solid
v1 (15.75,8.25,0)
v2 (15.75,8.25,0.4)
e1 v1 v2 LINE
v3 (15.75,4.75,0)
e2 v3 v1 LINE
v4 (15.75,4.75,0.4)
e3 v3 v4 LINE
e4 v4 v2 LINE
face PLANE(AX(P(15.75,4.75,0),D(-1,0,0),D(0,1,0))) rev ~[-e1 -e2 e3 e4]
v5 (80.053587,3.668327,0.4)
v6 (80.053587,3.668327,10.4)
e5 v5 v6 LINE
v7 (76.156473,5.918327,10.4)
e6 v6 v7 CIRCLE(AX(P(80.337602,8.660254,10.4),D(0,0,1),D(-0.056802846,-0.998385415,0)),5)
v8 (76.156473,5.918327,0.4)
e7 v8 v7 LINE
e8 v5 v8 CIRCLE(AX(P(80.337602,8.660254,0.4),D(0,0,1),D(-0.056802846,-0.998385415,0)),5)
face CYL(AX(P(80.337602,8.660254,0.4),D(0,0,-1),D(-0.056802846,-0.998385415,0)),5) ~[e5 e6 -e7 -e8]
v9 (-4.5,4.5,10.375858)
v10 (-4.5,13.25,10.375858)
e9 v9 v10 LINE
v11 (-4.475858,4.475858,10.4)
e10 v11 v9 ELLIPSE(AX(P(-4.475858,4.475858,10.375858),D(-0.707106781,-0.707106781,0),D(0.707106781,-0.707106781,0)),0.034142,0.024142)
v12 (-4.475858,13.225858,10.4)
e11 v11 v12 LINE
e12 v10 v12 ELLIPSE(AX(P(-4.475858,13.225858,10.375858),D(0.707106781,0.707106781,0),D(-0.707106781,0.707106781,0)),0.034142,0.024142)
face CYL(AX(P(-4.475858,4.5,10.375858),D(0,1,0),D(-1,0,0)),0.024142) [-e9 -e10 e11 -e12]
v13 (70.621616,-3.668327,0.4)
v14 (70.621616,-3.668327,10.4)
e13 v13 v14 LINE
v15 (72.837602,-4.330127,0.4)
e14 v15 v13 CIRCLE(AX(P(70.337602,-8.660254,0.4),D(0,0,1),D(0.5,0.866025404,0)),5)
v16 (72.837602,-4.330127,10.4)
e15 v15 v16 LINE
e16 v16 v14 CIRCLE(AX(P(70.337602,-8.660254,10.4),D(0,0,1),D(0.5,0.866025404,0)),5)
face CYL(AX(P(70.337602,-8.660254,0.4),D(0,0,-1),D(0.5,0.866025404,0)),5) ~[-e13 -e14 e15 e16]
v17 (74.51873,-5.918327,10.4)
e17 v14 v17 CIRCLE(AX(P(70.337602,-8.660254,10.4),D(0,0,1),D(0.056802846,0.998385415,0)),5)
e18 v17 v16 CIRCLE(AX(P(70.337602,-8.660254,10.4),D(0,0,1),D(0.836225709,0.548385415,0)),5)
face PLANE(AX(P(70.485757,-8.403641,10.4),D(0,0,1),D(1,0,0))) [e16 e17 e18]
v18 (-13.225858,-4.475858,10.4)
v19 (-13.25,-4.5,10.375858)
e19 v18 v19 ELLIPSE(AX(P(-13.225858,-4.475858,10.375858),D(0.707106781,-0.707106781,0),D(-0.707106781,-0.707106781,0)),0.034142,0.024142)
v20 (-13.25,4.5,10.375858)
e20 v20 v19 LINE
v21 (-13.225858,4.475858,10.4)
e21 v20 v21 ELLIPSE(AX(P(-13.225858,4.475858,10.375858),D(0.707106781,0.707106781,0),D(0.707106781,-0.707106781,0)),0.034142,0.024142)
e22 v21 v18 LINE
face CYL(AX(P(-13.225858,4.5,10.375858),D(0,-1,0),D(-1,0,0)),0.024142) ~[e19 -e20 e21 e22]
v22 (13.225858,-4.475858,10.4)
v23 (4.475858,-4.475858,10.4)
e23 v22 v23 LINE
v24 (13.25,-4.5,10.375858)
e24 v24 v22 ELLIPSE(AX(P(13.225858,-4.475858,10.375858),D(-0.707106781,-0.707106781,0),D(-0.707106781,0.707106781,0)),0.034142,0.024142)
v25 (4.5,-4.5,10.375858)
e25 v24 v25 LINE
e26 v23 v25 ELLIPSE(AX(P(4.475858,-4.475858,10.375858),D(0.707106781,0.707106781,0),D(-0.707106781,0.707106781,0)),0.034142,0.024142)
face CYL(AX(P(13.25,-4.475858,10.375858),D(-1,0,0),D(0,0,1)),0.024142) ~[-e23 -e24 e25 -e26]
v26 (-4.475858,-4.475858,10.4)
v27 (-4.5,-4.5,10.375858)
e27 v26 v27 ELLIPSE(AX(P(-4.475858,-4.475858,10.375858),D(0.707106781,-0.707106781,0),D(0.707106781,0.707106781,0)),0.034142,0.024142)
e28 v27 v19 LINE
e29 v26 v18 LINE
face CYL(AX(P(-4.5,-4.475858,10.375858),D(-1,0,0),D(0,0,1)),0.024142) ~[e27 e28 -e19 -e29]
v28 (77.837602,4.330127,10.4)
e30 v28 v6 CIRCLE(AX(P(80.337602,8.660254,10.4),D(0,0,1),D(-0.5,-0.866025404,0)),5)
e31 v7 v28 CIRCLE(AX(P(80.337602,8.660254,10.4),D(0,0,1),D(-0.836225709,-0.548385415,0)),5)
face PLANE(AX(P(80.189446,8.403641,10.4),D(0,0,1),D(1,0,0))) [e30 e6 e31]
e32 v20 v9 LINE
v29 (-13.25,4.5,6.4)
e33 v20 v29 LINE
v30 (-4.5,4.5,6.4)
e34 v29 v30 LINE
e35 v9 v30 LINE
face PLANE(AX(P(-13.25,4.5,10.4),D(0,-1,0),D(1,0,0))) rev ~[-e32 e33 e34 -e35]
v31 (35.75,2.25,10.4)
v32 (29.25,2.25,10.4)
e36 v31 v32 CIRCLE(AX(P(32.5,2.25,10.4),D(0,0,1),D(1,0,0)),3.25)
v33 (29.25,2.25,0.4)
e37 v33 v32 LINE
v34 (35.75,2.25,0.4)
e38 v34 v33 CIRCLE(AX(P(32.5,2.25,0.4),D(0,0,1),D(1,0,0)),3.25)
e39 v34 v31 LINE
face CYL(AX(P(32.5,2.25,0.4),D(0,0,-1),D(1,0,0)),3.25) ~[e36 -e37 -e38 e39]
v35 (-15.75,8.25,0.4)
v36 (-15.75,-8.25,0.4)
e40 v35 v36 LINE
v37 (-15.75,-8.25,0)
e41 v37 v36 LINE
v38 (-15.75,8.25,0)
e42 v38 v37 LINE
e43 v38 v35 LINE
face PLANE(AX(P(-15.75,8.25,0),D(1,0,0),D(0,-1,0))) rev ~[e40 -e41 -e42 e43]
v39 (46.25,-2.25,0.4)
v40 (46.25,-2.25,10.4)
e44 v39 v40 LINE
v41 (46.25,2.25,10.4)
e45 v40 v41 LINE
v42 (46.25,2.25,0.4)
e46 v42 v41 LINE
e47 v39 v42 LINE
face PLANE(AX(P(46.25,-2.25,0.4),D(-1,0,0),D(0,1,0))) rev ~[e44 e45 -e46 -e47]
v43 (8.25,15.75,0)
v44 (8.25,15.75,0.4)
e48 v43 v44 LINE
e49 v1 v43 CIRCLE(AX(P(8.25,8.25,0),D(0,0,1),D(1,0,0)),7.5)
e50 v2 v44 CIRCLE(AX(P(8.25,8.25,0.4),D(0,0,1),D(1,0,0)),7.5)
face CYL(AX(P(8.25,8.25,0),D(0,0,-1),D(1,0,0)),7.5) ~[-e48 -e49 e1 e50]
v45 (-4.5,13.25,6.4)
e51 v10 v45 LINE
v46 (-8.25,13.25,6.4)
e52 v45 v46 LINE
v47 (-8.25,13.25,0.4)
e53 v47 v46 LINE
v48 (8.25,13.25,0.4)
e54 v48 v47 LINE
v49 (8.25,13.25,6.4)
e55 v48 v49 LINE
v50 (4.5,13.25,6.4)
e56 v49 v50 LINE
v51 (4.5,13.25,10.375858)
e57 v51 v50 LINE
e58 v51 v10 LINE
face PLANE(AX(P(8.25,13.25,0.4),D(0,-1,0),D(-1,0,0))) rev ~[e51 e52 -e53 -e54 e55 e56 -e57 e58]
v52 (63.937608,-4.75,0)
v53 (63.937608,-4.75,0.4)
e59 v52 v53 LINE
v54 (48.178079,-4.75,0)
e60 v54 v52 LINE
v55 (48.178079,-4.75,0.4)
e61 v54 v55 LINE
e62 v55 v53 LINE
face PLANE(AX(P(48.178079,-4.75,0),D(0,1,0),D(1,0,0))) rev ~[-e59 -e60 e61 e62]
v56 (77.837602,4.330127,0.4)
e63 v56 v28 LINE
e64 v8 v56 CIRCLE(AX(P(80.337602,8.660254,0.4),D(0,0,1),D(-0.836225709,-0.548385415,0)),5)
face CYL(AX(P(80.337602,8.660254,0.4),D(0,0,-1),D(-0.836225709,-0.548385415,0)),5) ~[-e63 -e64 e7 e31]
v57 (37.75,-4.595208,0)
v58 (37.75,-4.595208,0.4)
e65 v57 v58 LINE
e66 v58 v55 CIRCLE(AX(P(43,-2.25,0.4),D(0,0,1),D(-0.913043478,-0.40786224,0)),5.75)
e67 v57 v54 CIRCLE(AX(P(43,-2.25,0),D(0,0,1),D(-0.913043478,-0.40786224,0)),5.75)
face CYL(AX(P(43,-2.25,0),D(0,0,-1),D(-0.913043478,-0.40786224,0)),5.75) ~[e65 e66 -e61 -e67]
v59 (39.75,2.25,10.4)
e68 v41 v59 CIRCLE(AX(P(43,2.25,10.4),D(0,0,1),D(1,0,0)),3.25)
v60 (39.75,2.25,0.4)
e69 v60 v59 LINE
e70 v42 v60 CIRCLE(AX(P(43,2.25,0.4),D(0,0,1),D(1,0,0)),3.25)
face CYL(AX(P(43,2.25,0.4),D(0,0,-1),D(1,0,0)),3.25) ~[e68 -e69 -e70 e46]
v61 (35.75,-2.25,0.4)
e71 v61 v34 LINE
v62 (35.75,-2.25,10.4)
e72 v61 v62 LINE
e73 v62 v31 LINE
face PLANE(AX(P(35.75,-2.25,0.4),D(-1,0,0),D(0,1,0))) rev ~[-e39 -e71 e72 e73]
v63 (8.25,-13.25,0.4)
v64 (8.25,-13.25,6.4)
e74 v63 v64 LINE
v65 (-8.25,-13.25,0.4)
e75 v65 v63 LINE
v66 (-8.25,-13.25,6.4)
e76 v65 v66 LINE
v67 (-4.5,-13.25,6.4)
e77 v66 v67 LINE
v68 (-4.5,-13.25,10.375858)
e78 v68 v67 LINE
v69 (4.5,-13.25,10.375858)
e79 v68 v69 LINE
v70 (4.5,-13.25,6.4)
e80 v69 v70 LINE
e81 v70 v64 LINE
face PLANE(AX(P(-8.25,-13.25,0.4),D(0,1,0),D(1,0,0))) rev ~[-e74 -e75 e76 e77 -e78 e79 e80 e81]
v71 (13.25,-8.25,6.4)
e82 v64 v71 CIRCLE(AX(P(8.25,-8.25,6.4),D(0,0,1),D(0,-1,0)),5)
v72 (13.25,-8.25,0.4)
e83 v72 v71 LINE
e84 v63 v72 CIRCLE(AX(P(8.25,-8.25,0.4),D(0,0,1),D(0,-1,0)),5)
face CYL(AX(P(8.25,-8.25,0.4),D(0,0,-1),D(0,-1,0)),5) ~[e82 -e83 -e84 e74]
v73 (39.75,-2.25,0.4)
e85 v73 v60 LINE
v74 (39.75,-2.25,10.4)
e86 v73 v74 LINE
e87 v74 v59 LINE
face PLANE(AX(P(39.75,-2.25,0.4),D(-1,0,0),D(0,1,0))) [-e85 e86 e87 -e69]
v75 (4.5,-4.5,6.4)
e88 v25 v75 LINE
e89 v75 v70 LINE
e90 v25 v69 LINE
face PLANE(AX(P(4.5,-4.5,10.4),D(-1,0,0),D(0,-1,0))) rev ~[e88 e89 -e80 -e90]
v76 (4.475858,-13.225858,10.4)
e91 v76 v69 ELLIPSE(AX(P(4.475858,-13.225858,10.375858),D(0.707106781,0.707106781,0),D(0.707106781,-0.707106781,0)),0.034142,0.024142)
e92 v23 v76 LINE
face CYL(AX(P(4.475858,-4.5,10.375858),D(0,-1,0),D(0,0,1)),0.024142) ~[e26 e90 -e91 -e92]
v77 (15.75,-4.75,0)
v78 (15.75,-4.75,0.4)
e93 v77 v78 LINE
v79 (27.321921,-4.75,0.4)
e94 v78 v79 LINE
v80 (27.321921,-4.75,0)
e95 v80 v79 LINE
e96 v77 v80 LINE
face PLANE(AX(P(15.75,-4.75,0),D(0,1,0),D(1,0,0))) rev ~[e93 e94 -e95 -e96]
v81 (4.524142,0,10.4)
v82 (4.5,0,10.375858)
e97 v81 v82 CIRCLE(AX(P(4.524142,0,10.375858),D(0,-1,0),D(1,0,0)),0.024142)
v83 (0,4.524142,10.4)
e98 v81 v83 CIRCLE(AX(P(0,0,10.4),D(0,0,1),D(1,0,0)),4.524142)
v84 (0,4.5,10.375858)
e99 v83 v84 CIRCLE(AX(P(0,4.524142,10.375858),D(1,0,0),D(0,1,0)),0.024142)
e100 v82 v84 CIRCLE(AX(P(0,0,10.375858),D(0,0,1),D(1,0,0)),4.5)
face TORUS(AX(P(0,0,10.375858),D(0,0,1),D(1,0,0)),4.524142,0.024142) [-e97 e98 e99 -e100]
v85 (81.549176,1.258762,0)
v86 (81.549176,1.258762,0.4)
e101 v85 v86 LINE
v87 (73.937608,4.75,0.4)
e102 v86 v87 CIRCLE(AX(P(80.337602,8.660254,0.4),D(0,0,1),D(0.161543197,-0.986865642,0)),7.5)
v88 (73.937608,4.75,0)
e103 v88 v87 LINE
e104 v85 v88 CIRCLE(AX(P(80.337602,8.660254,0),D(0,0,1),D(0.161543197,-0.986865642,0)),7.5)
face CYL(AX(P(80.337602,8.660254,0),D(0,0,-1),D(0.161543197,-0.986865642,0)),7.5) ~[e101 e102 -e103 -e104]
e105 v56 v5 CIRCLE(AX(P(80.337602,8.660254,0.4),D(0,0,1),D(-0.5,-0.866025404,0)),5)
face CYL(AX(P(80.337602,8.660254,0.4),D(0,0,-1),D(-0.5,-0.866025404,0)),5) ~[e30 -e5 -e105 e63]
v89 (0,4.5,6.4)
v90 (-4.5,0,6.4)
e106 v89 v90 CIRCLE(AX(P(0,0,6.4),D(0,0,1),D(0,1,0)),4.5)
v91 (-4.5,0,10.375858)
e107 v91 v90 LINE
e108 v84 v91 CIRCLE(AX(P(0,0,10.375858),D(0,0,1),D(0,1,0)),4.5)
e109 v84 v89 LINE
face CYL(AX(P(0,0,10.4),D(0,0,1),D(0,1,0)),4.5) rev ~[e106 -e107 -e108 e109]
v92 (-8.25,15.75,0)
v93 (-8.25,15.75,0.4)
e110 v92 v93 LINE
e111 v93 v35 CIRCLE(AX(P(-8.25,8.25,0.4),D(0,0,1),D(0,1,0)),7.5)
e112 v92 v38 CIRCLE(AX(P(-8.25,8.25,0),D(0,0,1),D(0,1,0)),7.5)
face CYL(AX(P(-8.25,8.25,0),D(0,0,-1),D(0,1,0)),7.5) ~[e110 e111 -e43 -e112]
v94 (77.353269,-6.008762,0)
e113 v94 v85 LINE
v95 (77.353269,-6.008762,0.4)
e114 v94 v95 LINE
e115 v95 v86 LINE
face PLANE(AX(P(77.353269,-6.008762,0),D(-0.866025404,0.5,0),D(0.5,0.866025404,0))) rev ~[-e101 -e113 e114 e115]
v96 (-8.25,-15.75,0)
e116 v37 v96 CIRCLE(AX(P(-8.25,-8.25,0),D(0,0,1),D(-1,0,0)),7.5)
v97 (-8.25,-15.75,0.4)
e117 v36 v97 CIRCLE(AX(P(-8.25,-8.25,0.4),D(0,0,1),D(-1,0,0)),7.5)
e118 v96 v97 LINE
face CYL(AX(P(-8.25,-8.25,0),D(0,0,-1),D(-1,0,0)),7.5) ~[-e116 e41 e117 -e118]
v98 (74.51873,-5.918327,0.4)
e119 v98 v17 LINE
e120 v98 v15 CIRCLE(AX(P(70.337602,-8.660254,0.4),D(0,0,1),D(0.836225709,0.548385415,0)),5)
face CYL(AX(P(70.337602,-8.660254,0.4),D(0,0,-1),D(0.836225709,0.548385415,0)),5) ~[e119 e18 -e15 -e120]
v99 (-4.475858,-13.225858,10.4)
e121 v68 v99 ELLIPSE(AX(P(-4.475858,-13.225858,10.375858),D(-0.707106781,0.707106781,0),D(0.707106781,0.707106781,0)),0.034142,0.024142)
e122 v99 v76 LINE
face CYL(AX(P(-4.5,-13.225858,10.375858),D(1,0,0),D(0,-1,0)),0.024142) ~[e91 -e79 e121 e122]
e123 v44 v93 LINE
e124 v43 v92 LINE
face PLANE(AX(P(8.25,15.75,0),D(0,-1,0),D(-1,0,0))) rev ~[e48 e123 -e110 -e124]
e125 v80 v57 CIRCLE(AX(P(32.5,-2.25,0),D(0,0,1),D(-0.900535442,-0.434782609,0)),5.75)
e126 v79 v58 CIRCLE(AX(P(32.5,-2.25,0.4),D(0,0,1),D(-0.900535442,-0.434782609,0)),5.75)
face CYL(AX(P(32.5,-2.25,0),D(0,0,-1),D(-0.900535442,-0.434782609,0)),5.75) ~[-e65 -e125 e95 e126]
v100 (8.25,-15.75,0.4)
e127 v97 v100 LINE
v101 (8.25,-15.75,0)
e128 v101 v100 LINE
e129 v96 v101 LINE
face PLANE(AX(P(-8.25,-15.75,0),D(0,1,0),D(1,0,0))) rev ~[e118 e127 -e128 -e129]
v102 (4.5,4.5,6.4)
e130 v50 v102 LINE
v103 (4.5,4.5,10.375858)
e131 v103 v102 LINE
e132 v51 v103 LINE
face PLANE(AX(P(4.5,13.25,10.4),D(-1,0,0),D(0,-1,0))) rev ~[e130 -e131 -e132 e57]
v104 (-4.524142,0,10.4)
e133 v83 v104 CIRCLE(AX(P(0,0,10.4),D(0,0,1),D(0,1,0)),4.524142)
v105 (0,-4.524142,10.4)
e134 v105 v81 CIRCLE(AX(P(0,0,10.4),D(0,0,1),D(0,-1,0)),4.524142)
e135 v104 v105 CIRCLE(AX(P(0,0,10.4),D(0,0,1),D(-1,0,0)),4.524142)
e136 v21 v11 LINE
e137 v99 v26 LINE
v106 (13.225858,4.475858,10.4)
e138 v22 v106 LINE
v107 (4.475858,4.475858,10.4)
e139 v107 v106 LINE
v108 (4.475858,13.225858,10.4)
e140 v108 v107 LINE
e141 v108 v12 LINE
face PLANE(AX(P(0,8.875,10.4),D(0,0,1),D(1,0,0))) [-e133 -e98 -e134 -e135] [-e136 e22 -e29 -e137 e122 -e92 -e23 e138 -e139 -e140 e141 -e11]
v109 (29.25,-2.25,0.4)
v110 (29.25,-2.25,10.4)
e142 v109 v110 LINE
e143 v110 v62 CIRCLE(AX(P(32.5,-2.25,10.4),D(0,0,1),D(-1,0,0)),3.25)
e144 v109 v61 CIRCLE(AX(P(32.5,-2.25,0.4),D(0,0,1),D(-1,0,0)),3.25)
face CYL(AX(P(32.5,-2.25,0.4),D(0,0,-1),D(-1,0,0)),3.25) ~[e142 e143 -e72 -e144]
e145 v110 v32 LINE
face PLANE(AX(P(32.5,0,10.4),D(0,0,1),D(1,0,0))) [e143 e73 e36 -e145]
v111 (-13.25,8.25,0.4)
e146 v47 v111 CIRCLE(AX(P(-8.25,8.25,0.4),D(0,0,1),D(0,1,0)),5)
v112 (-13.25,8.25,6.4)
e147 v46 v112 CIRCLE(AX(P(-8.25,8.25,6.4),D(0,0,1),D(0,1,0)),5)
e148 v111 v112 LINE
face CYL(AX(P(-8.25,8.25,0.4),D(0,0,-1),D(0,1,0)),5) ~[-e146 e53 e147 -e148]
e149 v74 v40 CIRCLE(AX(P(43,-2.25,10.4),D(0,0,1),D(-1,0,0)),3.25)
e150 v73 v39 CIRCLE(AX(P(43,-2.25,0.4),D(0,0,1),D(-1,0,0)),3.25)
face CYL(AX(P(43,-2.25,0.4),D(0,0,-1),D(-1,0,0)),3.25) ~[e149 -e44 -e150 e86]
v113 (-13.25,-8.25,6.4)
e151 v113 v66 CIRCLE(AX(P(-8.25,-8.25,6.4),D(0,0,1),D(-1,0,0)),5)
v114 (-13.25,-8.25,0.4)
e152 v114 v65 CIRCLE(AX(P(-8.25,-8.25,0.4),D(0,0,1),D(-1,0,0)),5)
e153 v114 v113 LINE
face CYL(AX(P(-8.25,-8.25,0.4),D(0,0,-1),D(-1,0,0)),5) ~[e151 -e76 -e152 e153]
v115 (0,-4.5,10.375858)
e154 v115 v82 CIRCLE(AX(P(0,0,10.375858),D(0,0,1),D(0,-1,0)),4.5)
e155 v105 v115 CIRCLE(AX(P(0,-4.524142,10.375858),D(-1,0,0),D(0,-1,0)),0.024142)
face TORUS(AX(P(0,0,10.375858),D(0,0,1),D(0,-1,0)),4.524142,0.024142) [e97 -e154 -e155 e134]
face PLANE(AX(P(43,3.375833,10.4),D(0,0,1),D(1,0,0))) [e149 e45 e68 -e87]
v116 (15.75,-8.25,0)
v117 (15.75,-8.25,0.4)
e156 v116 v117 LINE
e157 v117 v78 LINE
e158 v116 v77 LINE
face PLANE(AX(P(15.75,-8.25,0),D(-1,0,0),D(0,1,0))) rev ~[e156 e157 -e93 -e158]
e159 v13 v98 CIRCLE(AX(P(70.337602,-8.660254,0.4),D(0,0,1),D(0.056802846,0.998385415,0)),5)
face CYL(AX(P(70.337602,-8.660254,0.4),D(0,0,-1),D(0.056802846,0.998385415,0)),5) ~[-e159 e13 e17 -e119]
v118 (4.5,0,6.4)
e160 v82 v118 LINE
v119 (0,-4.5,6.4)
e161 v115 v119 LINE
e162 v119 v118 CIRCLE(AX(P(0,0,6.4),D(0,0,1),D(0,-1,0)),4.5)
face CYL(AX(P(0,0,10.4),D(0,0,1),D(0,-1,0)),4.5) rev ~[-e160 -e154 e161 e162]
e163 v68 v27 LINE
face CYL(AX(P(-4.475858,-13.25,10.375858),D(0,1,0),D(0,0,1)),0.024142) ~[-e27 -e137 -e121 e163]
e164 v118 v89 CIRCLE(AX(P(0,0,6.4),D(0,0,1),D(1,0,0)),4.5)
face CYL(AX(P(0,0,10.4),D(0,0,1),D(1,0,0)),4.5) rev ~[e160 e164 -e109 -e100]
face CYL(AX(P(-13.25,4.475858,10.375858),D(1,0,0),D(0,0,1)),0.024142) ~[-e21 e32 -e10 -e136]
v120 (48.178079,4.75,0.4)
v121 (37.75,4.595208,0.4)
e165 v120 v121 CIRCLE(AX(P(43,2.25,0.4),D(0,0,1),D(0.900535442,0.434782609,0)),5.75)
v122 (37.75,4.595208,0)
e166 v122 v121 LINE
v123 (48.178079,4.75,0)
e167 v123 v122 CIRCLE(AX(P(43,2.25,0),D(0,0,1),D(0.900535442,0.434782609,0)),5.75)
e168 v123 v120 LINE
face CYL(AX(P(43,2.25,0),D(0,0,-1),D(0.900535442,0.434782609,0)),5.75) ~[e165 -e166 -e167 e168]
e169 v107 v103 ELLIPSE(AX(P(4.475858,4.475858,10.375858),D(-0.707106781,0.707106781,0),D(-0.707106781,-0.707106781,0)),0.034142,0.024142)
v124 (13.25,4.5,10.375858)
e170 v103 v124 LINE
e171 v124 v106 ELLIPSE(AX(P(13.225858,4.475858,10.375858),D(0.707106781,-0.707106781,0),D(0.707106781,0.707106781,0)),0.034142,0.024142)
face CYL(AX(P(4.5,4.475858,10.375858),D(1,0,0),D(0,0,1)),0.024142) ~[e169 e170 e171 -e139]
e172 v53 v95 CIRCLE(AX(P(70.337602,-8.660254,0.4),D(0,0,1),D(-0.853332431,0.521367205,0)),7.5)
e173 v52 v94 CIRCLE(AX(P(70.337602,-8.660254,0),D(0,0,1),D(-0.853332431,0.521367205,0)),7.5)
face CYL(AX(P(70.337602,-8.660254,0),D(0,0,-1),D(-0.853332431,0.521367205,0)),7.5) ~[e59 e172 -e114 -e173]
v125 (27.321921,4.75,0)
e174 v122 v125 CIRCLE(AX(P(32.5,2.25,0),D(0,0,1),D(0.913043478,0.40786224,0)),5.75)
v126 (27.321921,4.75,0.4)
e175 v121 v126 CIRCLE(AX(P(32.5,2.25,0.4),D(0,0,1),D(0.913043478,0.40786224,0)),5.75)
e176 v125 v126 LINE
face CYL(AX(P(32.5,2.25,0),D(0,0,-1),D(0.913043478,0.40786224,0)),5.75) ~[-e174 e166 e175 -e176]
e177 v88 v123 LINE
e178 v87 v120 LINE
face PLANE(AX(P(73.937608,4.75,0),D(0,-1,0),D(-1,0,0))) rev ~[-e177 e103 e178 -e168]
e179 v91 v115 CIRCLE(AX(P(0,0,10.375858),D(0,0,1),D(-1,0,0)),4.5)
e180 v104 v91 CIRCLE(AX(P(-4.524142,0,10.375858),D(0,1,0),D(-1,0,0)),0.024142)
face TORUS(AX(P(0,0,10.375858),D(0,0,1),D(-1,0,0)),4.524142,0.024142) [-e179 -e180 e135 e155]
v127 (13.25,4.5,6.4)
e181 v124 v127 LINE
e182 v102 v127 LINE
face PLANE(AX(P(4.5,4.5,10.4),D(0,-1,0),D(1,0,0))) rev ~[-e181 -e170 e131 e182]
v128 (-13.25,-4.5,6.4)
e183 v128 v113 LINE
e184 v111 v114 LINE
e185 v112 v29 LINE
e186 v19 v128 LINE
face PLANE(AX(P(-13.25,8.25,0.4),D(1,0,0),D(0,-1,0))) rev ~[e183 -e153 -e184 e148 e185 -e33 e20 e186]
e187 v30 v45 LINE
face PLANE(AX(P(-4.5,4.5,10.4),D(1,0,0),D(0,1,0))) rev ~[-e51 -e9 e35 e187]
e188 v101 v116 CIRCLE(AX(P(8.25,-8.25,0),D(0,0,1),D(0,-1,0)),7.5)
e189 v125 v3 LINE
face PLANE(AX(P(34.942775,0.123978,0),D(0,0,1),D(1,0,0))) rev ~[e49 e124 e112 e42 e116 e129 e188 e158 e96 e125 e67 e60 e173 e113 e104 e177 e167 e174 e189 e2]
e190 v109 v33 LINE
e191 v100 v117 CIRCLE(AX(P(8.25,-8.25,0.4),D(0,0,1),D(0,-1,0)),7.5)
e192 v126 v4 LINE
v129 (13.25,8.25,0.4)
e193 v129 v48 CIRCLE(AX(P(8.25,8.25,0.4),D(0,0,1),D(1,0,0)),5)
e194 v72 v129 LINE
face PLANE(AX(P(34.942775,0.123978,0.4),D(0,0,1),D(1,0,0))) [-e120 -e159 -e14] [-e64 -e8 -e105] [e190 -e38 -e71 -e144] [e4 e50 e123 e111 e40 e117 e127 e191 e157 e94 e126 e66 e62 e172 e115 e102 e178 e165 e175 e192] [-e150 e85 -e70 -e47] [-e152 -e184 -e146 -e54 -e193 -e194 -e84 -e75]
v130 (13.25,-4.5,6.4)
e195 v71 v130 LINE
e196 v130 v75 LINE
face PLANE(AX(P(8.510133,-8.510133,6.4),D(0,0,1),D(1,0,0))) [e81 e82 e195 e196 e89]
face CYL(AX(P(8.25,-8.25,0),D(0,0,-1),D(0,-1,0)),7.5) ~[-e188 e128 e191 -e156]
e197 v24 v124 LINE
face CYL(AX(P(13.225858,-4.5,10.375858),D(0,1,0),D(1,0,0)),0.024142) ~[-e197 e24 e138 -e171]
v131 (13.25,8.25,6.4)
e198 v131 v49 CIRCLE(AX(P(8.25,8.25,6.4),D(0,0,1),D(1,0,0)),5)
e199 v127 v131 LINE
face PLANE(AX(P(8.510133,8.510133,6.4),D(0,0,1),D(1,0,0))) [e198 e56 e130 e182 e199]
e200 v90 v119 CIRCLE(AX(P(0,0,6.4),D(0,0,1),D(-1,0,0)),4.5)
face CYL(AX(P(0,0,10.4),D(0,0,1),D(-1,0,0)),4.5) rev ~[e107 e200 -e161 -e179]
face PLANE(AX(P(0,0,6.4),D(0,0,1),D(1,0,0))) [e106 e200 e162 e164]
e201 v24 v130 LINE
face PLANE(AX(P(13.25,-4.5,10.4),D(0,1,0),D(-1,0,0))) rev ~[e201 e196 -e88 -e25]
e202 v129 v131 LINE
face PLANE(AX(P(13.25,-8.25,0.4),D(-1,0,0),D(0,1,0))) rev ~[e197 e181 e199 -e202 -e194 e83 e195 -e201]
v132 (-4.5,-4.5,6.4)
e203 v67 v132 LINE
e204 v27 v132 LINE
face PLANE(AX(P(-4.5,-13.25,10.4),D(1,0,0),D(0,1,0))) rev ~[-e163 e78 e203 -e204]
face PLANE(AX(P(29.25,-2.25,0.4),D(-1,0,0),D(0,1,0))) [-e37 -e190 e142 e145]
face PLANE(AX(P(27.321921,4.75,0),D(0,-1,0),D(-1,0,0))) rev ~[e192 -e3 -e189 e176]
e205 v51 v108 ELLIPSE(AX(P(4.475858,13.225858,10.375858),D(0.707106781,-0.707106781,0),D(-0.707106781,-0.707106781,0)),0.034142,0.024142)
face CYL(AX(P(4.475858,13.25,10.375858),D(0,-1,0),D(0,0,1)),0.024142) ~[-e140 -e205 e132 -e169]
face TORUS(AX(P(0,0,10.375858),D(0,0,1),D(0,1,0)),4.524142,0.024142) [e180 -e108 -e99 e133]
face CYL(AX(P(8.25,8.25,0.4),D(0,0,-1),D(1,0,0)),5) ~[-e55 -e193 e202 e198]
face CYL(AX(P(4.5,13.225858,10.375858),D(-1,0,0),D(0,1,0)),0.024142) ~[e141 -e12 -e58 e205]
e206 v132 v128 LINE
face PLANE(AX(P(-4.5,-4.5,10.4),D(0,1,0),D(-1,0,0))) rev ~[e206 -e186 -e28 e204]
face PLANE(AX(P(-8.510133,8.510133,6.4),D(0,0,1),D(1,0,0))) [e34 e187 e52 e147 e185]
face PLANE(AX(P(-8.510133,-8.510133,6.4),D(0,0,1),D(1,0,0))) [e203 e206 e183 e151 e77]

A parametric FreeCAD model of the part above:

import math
import FreeCAD as App
import Part
import Sketcher

V = App.Vector
Q = App.Units.Quantity


def edges_at(feature, points):
    """Names of the edges that pass closest to the given points."""
    edges = feature.Shape.Edges
    near = lambda p: min(range(len(edges)), key=lambda i: edges[i].distToShape(Part.Vertex(*p))[0])
    return sorted({f"Edge{near(p) + 1}" for p in points})

doc = App.newDocument("Part")
params = doc.addObject("Spreadsheet::Sheet", "Params")
for row, (alias, value) in enumerate([
    ("sketch1_radius", "7.5 mm"),
    ("sketch1_radius2", "5.75 mm"),
    ("sketch1_width", "16.5 mm"),
    ("sketch1_height", "3.5 mm"),
    ("pad1_length", "0.4 mm"),
    ("sketch2_radius", "5 mm"),
    ("sketch2_radius2", "3.25 mm"),
    ("sketch2_width", "16.5 mm"),
    ("sketch2_height", "4.5 mm"),
    ("sketch2_width2", "2.5 mm"),
    ("pad2_length", "10 mm"),
    ("sketch3_radius", "5 mm"),
    ("sketch3_radius2", "4.5 mm"),
    ("sketch3_width", "3.75 mm"),
    ("pocket1_length", "4 mm"),
    ("fillet_radius", "0.024142 mm"),
], start=1):
    params.set(f"A{row}", alias)
    params.set(f"B{row}", "=" + value)
    params.setAlias(f"B{row}", alias)

body = doc.addObject("PartDesign::Body", "Body")

sketch1 = body.newObject("Sketcher::SketchObject", "Sketch")
sketch1.AttachmentSupport = (doc.getObject("XY_Plane"), [""])
sketch1.MapMode = "FlatFace"
sketch1.addGeometry([
    Part.LineSegment(V(8.25, 15.75, 0), V(-8.25, 15.75, 0)),
    Part.ArcOfCircle(Part.Circle(V(-8.25, 8.25, 0), V(0, 0, 1), 7.5), math.radians(90), math.radians(180)),
    Part.LineSegment(V(-15.75, 8.25, 0), V(-15.75, -8.25, 0)),
    Part.ArcOfCircle(Part.Circle(V(-8.25, -8.25, 0), V(0, 0, 1), 7.5), math.radians(180), math.radians(270)),
    Part.LineSegment(V(-8.25, -15.75, 0), V(8.25, -15.75, 0)),
    Part.ArcOfCircle(Part.Circle(V(8.25, -8.25, 0), V(0, 0, 1), 7.5), math.radians(-90), math.radians(0)),
    Part.LineSegment(V(15.75, -8.25, 0), V(15.75, -4.75, 0)),
    Part.LineSegment(V(15.75, -4.75, 0), V(27.321921, -4.75, 0)),
    Part.ArcOfCircle(Part.Circle(V(32.5, -2.25, 0), V(0, 0, 1), 5.75), math.radians(-154.228538), math.radians(-24.070615)),
    Part.ArcOfCircle(Part.Circle(V(43, -2.25, 0), V(0, 0, 1), 5.75), math.radians(-155.929385), math.radians(-25.771462)),
    Part.LineSegment(V(48.178079, -4.75, 0), V(63.937608, -4.75, 0)),
    Part.ArcOfCircle(Part.Circle(V(70.337602, -8.660254, 0), V(0, 0, 1), 7.5), math.radians(148.575994), math.radians(380.70352)),
    Part.LineSegment(V(77.353269, -6.008762, 0), V(81.549176, 1.258762, 0)),
    Part.ArcOfCircle(Part.Circle(V(80.337602, 8.660254, 0), V(0, 0, 1), 7.5), math.radians(-80.70352), math.radians(211.424006)),
    Part.LineSegment(V(73.937608, 4.75, 0), V(48.178079, 4.75, 0)),
    Part.ArcOfCircle(Part.Circle(V(43, 2.25, 0), V(0, 0, 1), 5.75), math.radians(25.771462), math.radians(155.929385)),
    Part.ArcOfCircle(Part.Circle(V(32.5, 2.25, 0), V(0, 0, 1), 5.75), math.radians(24.070615), math.radians(154.228538)),
    Part.LineSegment(V(27.321921, 4.75, 0), V(15.75, 4.75, 0)),
    Part.LineSegment(V(15.75, 4.75, 0), V(15.75, 8.25, 0)),
    Part.ArcOfCircle(Part.Circle(V(8.25, 8.25, 0), V(0, 0, 1), 7.5), math.radians(0), math.radians(90)),
], False)
sketch1.addConstraint([
    Sketcher.Constraint("Tangent", 0, 2, 1, 1),
    Sketcher.Constraint("Tangent", 1, 2, 2, 1),
    Sketcher.Constraint("Tangent", 2, 2, 3, 1),
    Sketcher.Constraint("Tangent", 3, 2, 4, 1),
    Sketcher.Constraint("Tangent", 4, 2, 5, 1),
    Sketcher.Constraint("Tangent", 5, 2, 6, 1),
    Sketcher.Constraint("Coincident", 6, 2, 7, 1),
    Sketcher.Constraint("Coincident", 7, 2, 8, 1),
    Sketcher.Constraint("Coincident", 8, 2, 9, 1),
    Sketcher.Constraint("Coincident", 9, 2, 10, 1),
    Sketcher.Constraint("Coincident", 10, 2, 11, 1),
    Sketcher.Constraint("Coincident", 11, 2, 12, 1),
    Sketcher.Constraint("Coincident", 12, 2, 13, 1),
    Sketcher.Constraint("Coincident", 13, 2, 14, 1),
    Sketcher.Constraint("Coincident", 14, 2, 15, 1),
    Sketcher.Constraint("Coincident", 15, 2, 16, 1),
    Sketcher.Constraint("Coincident", 16, 2, 17, 1),
    Sketcher.Constraint("Coincident", 17, 2, 18, 1),
    Sketcher.Constraint("Tangent", 18, 2, 19, 1),
    Sketcher.Constraint("Tangent", 19, 2, 0, 1),
    Sketcher.Constraint("Horizontal", 0),
    Sketcher.Constraint("Vertical", 2),
    Sketcher.Constraint("Horizontal", 4),
    Sketcher.Constraint("Vertical", 6),
    Sketcher.Constraint("Horizontal", 7),
    Sketcher.Constraint("Horizontal", 10),
    Sketcher.Constraint("Horizontal", 14),
    Sketcher.Constraint("Horizontal", 17),
    Sketcher.Constraint("Vertical", 18),
    Sketcher.Constraint("Equal", 1, 3),
    Sketcher.Constraint("Equal", 3, 5),
    Sketcher.Constraint("Equal", 8, 9),
    Sketcher.Constraint("Equal", 5, 11),
    Sketcher.Constraint("Equal", 11, 13),
    Sketcher.Constraint("Equal", 9, 15),
    Sketcher.Constraint("Equal", 15, 16),
    Sketcher.Constraint("Equal", 13, 19),
    Sketcher.Constraint("Symmetric", 1, 3, 5, 3, -1, 1),
    Sketcher.Constraint("Symmetric", 9, 3, 15, 3, -1),
    Sketcher.Constraint("Symmetric", 8, 3, 16, 3, -1),
    Sketcher.Constraint("Symmetric", 6, 2, 17, 2, -1),
    Sketcher.Constraint("Horizontal", 8, 3, 9, 3),
    Sketcher.Constraint("Horizontal", 7, 2, 9, 2),
    Sketcher.Constraint("Horizontal", 14, 2, 16, 2),
    Sketcher.Constraint("Equal", 4, 2),
    Sketcher.Constraint("Radius", 1, 7.5),
    Sketcher.Constraint("Angle", 12, Q("60 deg")),
    Sketcher.Constraint("Radius", 8, 5.75),
    Sketcher.Constraint("DistanceX", 0, 2, 0, 1, 16.5),
    Sketcher.Constraint("DistanceY", 6, 1, 6, 2, 3.5),
    Sketcher.Constraint("DistanceX", -1, 1, 9, 3, 43.0),
    Sketcher.Constraint("DistanceY", 5, 3, 8, 3, 6.0),
    Sketcher.Constraint("DistanceX", 11, 3, 13, 3, 10.0),
    Sketcher.Constraint("DistanceX", 10, 2, 13, 2, 10.0),
    Sketcher.Constraint("DistanceX", -1, 1, 8, 3, 32.5),
    Sketcher.Constraint("DistanceX", 10, 1, 10, 2, 15.75953),
    Sketcher.Constraint("DistanceX", -1, 1, 11, 3, 70.337602),
    Sketcher.Constraint("DistanceX", -1, 1, 11, 2, 77.353269),
])
sketch1.setExpression("Constraints[45]", "Params.sketch1_radius")
sketch1.setExpression("Constraints[47]", "Params.sketch1_radius2")
sketch1.setExpression("Constraints[48]", "Params.sketch1_width")
sketch1.setExpression("Constraints[49]", "Params.sketch1_height")
pad1 = body.newObject("PartDesign::Pad", "Pad")
pad1.Profile = sketch1
pad1.setExpression("Length", "Params.pad1_length")

sketch2 = body.newObject("Sketcher::SketchObject", "Sketch001")
sketch2.AttachmentSupport = (doc.getObject("XY_Plane"), [""])
sketch2.MapMode = "FlatFace"
sketch2.AttachmentOffset = App.Placement(V(0, 0, 0.4), App.Rotation())
sketch2.addGeometry([
    Part.ArcOfCircle(Part.Circle(V(8.25, 8.25, 0), V(0, 0, 1), 5), math.radians(0), math.radians(90)),
    Part.LineSegment(V(8.25, 13.25, 0), V(-8.25, 13.25, 0)),
    Part.ArcOfCircle(Part.Circle(V(-8.25, 8.25, 0), V(0, 0, 1), 5), math.radians(90), math.radians(180)),
    Part.LineSegment(V(-13.25, 8.25, 0), V(-13.25, -8.25, 0)),
    Part.ArcOfCircle(Part.Circle(V(-8.25, -8.25, 0), V(0, 0, 1), 5), math.radians(180), math.radians(270)),
    Part.LineSegment(V(-8.25, -13.25, 0), V(8.25, -13.25, 0)),
    Part.ArcOfCircle(Part.Circle(V(8.25, -8.25, 0), V(0, 0, 1), 5), math.radians(-90), math.radians(0)),
    Part.LineSegment(V(13.25, -8.25, 0), V(13.25, 8.25, 0)),
    Part.LineSegment(V(29.25, 2.25, 0), V(29.25, -2.25, 0)),
    Part.ArcOfCircle(Part.Circle(V(32.5, -2.25, 0), V(0, 0, 1), 3.25), math.radians(180), math.radians(360)),
    Part.LineSegment(V(35.75, -2.25, 0), V(35.75, 2.25, 0)),
    Part.ArcOfCircle(Part.Circle(V(32.5, 2.25, 0), V(0, 0, 1), 3.25), math.radians(0), math.radians(180)),
    Part.ArcOfCircle(Part.Circle(V(43, 2.25, 0), V(0, 0, 1), 3.25), math.radians(0), math.radians(180)),
    Part.LineSegment(V(39.75, 2.25, 0), V(39.75, -2.25, 0)),
    Part.ArcOfCircle(Part.Circle(V(43, -2.25, 0), V(0, 0, 1), 3.25), math.radians(180), math.radians(360)),
    Part.LineSegment(V(46.25, -2.25, 0), V(46.25, 2.25, 0)),
    Part.ArcOfCircle(Part.Circle(V(80.337602, 8.660254, 0), V(0, 0, 1), 5), math.radians(-93.256316), math.radians(213.256316)),
    Part.ArcOfCircle(Part.Circle(V(80.337602, 8.660254, 0), V(0, 0, 1), 5), math.radians(-146.743684), math.radians(-120)),
    Part.ArcOfCircle(Part.Circle(V(80.337602, 8.660254, 0), V(0, 0, 1), 5), math.radians(-120), math.radians(-93.256316)),
    Part.ArcOfCircle(Part.Circle(V(70.337602, -8.660254, 0), V(0, 0, 1), 5), math.radians(60), math.radians(86.743684)),
    Part.ArcOfCircle(Part.Circle(V(70.337602, -8.660254, 0), V(0, 0, 1), 5), math.radians(86.743684), math.radians(393.256316)),
    Part.ArcOfCircle(Part.Circle(V(70.337602, -8.660254, 0), V(0, 0, 1), 5), math.radians(33.256316), math.radians(60)),
], False)
sketch2.addConstraint([
    Sketcher.Constraint("Tangent", 0, 2, 1, 1),
    Sketcher.Constraint("Tangent", 1, 2, 2, 1),
    Sketcher.Constraint("Tangent", 2, 2, 3, 1),
    Sketcher.Constraint("Tangent", 3, 2, 4, 1),
    Sketcher.Constraint("Tangent", 4, 2, 5, 1),
    Sketcher.Constraint("Tangent", 5, 2, 6, 1),
    Sketcher.Constraint("Tangent", 6, 2, 7, 1),
    Sketcher.Constraint("Tangent", 7, 2, 0, 1),
    Sketcher.Constraint("Tangent", 8, 2, 9, 1),
    Sketcher.Constraint("Tangent", 9, 2, 10, 1),
    Sketcher.Constraint("Tangent", 10, 2, 11, 1),
    Sketcher.Constraint("Tangent", 11, 2, 8, 1),
    Sketcher.Constraint("Tangent", 12, 2, 13, 1),
    Sketcher.Constraint("Tangent", 13, 2, 14, 1),
    Sketcher.Constraint("Tangent", 14, 2, 15, 1),
    Sketcher.Constraint("Tangent", 15, 2, 12, 1),
    Sketcher.Constraint("Tangent", 16, 2, 17, 1),
    Sketcher.Constraint("Tangent", 17, 2, 18, 1),
    Sketcher.Constraint("Tangent", 18, 2, 16, 1),
    Sketcher.Constraint("Tangent", 19, 2, 20, 1),
    Sketcher.Constraint("Tangent", 20, 2, 21, 1),
    Sketcher.Constraint("Tangent", 21, 2, 19, 1),
    Sketcher.Constraint("Horizontal", 1),
    Sketcher.Constraint("Vertical", 3),
    Sketcher.Constraint("Horizontal", 5),
    Sketcher.Constraint("Vertical", 7),
    Sketcher.Constraint("Vertical", 8),
    Sketcher.Constraint("Vertical", 10),
    Sketcher.Constraint("Vertical", 13),
    Sketcher.Constraint("Vertical", 15),
    Sketcher.Constraint("Equal", 0, 2),
    Sketcher.Constraint("Equal", 2, 4),
    Sketcher.Constraint("Equal", 4, 6),
    Sketcher.Constraint("Equal", 11, 12),
    Sketcher.Constraint("Equal", 6, 16),
    Sketcher.Constraint("Equal", 18, 19),
    Sketcher.Constraint("Symmetric", 0, 3, 4, 3, -1, 1),
    Sketcher.Constraint("Horizontal", 11, 3, 12, 3),
    Sketcher.Constraint("Horizontal", 9, 3, 14, 3),
    Sketcher.Constraint("Equal", 5, 3),
    Sketcher.Constraint("Radius", 0, 5.0),
    Sketcher.Constraint("Radius", 9, 3.25),
    Sketcher.Constraint("DistanceX", 1, 2, 1, 1, 16.5),
    Sketcher.Constraint("DistanceY", 8, 2, 8, 1, 4.5),
    Sketcher.Constraint("DistanceX", -1, 1, 12, 3, 43.0),
    Sketcher.Constraint("DistanceY", 6, 3, 9, 3, 6.0),
    Sketcher.Constraint("DistanceX", 19, 3, 17, 3, 10.0),
    Sketcher.Constraint("DistanceX", 6, 2, 8, 2, 16.0),
    Sketcher.Constraint("DistanceX", 17, 2, 17, 3, 2.5),
    Sketcher.Constraint("DistanceX", 21, 3, 21, 2, 2.5),
    Sketcher.Constraint("DistanceY", 18, 2, 16, 2, 2.25),
    Sketcher.Constraint("DistanceY", 20, 2, 19, 2, 2.25),
    Sketcher.Constraint("DistanceX", -1, 1, 16, 3, 80.337602),
    Sketcher.Constraint("DistanceY", 17, 2, 16, 2, 1.5882),
    Sketcher.Constraint("DistanceY", 20, 2, 21, 2, 1.5882),
    Sketcher.Constraint("DistanceY", 19, 3, 17, 3, 17.320508),
    Sketcher.Constraint("DistanceY", -1, 1, 16, 3, 8.660254),
])
sketch2.setExpression("Constraints[40]", "Params.sketch2_radius")
sketch2.setExpression("Constraints[41]", "Params.sketch2_radius2")
sketch2.setExpression("Constraints[42]", "Params.sketch2_width")
sketch2.setExpression("Constraints[43]", "Params.sketch2_height")
sketch2.setExpression("Constraints[48]", "Params.sketch2_width2")
pad2 = body.newObject("PartDesign::Pad", "Pad001")
pad2.Profile = sketch2
pad2.setExpression("Length", "Params.pad2_length")

sketch3 = body.newObject("Sketcher::SketchObject", "Sketch002")
sketch3.AttachmentSupport = (doc.getObject("XY_Plane"), [""])
sketch3.MapMode = "FlatFace"
sketch3.AttachmentOffset = App.Placement(V(0, 0, 10.4), App.Rotation())
sketch3.addGeometry([
    Part.LineSegment(V(8.25, 13.25, 0), V(4.5, 13.25, 0)),
    Part.LineSegment(V(4.5, 13.25, 0), V(4.5, 4.5, 0)),
    Part.LineSegment(V(4.5, 4.5, 0), V(13.25, 4.5, 0)),
    Part.LineSegment(V(13.25, 4.5, 0), V(13.25, 8.25, 0)),
    Part.ArcOfCircle(Part.Circle(V(8.25, 8.25, 0), V(0, 0, 1), 5), math.radians(0), math.radians(90)),
    Part.LineSegment(V(-4.5, 13.25, 0), V(-8.25, 13.25, 0)),
    Part.ArcOfCircle(Part.Circle(V(-8.25, 8.25, 0), V(0, 0, 1), 5), math.radians(90), math.radians(180)),
    Part.LineSegment(V(-13.25, 8.25, 0), V(-13.25, 4.5, 0)),
    Part.LineSegment(V(-13.25, 4.5, 0), V(-4.5, 4.5, 0)),
    Part.LineSegment(V(-4.5, 4.5, 0), V(-4.5, 13.25, 0)),
    Part.LineSegment(V(-4.5, -4.5, 0), V(-13.25, -4.5, 0)),
    Part.LineSegment(V(-13.25, -4.5, 0), V(-13.25, -8.25, 0)),
    Part.ArcOfCircle(Part.Circle(V(-8.25, -8.25, 0), V(0, 0, 1), 5), math.radians(180), math.radians(270)),
    Part.LineSegment(V(-8.25, -13.25, 0), V(-4.5, -13.25, 0)),
    Part.LineSegment(V(-4.5, -13.25, 0), V(-4.5, -4.5, 0)),
    Part.LineSegment(V(13.25, -4.5, 0), V(4.5, -4.5, 0)),
    Part.LineSegment(V(4.5, -4.5, 0), V(4.5, -13.25, 0)),
    Part.LineSegment(V(4.5, -13.25, 0), V(8.25, -13.25, 0)),
    Part.ArcOfCircle(Part.Circle(V(8.25, -8.25, 0), V(0, 0, 1), 5), math.radians(-90), math.radians(0)),
    Part.LineSegment(V(13.25, -8.25, 0), V(13.25, -4.5, 0)),
    Part.ArcOfCircle(Part.Circle(V(0, 0, 0), V(0, 0, 1), 4.5), math.radians(90), math.radians(180)),
    Part.ArcOfCircle(Part.Circle(V(0, 0, 0), V(0, 0, 1), 4.5), math.radians(180), math.radians(270)),
    Part.ArcOfCircle(Part.Circle(V(0, 0, 0), V(0, 0, 1), 4.5), math.radians(-90), math.radians(0)),
    Part.ArcOfCircle(Part.Circle(V(0, 0, 0), V(0, 0, 1), 4.5), math.radians(0), math.radians(90)),
], False)
sketch3.addConstraint([
    Sketcher.Constraint("Coincident", 0, 2, 1, 1),
    Sketcher.Constraint("Coincident", 1, 2, 2, 1),
    Sketcher.Constraint("Coincident", 2, 2, 3, 1),
    Sketcher.Constraint("Tangent", 3, 2, 4, 1),
    Sketcher.Constraint("Tangent", 4, 2, 0, 1),
    Sketcher.Constraint("Tangent", 5, 2, 6, 1),
    Sketcher.Constraint("Tangent", 6, 2, 7, 1),
    Sketcher.Constraint("Coincident", 7, 2, 8, 1),
    Sketcher.Constraint("Coincident", 8, 2, 9, 1),
    Sketcher.Constraint("Coincident", 9, 2, 5, 1),
    Sketcher.Constraint("Coincident", 10, 2, 11, 1),
    Sketcher.Constraint("Tangent", 11, 2, 12, 1),
    Sketcher.Constraint("Tangent", 12, 2, 13, 1),
    Sketcher.Constraint("Coincident", 13, 2, 14, 1),
    Sketcher.Constraint("Coincident", 14, 2, 10, 1),
    Sketcher.Constraint("Coincident", 15, 2, 16, 1),
    Sketcher.Constraint("Coincident", 16, 2, 17, 1),
    Sketcher.Constraint("Tangent", 17, 2, 18, 1),
    Sketcher.Constraint("Tangent", 18, 2, 19, 1),
    Sketcher.Constraint("Coincident", 19, 2, 15, 1),
    Sketcher.Constraint("Tangent", 20, 2, 21, 1),
    Sketcher.Constraint("Tangent", 21, 2, 22, 1),
    Sketcher.Constraint("Tangent", 22, 2, 23, 1),
    Sketcher.Constraint("Tangent", 23, 2, 20, 1),
    Sketcher.Constraint("Horizontal", 0),
    Sketcher.Constraint("Vertical", 1),
    Sketcher.Constraint("Horizontal", 2),
    Sketcher.Constraint("Vertical", 3),
    Sketcher.Constraint("Horizontal", 5),
    Sketcher.Constraint("Vertical", 7),
    Sketcher.Constraint("Horizontal", 8),
    Sketcher.Constraint("Vertical", 9),
    Sketcher.Constraint("Horizontal", 10),
    Sketcher.Constraint("Vertical", 11),
    Sketcher.Constraint("Horizontal", 13),
    Sketcher.Constraint("Vertical", 14),
    Sketcher.Constraint("Horizontal", 15),
    Sketcher.Constraint("Vertical", 16),
    Sketcher.Constraint("Horizontal", 17),
    Sketcher.Constraint("Vertical", 19),
    Sketcher.Constraint("Coincident", 20, 3, -1, 1),
    Sketcher.Constraint("Equal", 4, 6),
    Sketcher.Constraint("Equal", 6, 12),
    Sketcher.Constraint("Equal", 12, 18),
    Sketcher.Constraint("Equal", 20, 21),
    Sketcher.Constraint("Symmetric", 4, 3, 12, 3, -1, 1),
    Sketcher.Constraint("Symmetric", 6, 3, 18, 3, -1, 1),
    Sketcher.Constraint("Symmetric", 1, 2, 14, 2, -1, 1),
    Sketcher.Constraint("Symmetric", 8, 2, 15, 2, -1, 1),
    Sketcher.Constraint("Symmetric", 4, 3, 6, 3, -2),
    Sketcher.Constraint("Symmetric", 1, 2, 8, 2, -2),
    Sketcher.Constraint("PointOnObject", 20, 2, -1),
    Sketcher.Constraint("PointOnObject", 21, 2, -2),
    Sketcher.Constraint("PointOnObject", 22, 2, -1),
    Sketcher.Constraint("PointOnObject", 23, 2, -2),
    Sketcher.Constraint("Horizontal", 19, 2, 21, 2),
    Sketcher.Constraint("Vertical", 14, 2, 20, 2),
    Sketcher.Constraint("Equal", 15, 1),
    Sketcher.Constraint("Radius", 4, 5.0),
    Sketcher.Constraint("Radius", 20, 4.5),
    Sketcher.Constraint("DistanceX", 0, 2, 0, 1, 3.75),
])
sketch3.setExpression("Constraints[58]", "Params.sketch3_radius")
sketch3.setExpression("Constraints[59]", "Params.sketch3_radius2")
sketch3.setExpression("Constraints[60]", "Params.sketch3_width")
pocket1 = body.newObject("PartDesign::Pocket", "Pocket")
pocket1.Profile = sketch3
pocket1.setExpression("Length", "Params.pocket1_length")
doc.recompute()

fillet = body.newObject("PartDesign::Fillet", "Fillet")
fillet.Base = (pocket1, edges_at(pocket1, [
    (13.25, 0, 10.4),
    (8.875, -4.5, 10.4),
    (4.5, -8.875, 10.4),
    (0, -13.25, 10.4),
    (-4.5, -8.875, 10.4),
    (-8.875, -4.5, 10.4),
    (-13.25, 0, 10.4),
    (-8.875, 4.5, 10.4),
    (-4.5, 8.875, 10.4),
    (0, 13.25, 10.4),
    (4.5, 8.875, 10.4),
    (8.875, 4.5, 10.4),
    (-3.182, 3.182, 10.4),
]))
fillet.setExpression("Radius", "Params.fillet_radius")

doc.recompute()
